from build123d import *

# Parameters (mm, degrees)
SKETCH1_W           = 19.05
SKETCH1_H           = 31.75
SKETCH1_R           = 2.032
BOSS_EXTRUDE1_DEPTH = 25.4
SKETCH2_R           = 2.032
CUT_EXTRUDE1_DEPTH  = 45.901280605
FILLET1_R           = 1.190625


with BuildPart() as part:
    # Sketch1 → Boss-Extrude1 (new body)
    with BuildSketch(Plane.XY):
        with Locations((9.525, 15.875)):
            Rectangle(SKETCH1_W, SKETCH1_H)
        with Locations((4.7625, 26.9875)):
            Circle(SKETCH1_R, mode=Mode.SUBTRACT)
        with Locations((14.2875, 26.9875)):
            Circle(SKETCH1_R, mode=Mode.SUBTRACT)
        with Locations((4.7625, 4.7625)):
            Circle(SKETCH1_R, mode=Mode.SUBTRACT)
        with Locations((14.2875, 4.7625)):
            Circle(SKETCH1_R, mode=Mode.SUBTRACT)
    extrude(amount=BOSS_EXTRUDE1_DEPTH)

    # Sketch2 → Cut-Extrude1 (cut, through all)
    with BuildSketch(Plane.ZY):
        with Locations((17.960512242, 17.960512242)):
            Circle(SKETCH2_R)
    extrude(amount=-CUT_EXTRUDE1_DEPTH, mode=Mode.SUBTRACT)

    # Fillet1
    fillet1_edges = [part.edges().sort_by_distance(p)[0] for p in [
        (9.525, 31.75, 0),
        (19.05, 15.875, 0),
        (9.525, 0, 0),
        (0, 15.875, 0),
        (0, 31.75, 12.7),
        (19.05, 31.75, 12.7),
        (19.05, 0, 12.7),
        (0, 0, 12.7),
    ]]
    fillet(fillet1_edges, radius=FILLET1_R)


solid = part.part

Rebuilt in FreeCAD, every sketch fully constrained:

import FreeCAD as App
import Part
import Sketcher
from FreeCAD import Vector
Q = App.Units.Quantity


def edges_at(feature, points):
    """Names of the edges that pass closest to the given points."""
    edges = feature.Shape.Edges
    near = lambda p: min(range(len(edges)), key=lambda i: edges[i].distToShape(Part.Vertex(*p))[0])
    return sorted({f"Edge{near(p) + 1}" for p in points})


def add_polygon(sketch, points):
    """Adds a closed chain of lines whose ends are joined by coincident constraints."""
    first, n = sketch.GeometryCount, len(points)
    for a, b in zip(points, points[1:] + points[:1]):
        sketch.addGeometry(Part.LineSegment(App.Vector(*a, 0), App.Vector(*b, 0)), False)
    for i in range(n):
        sketch.addConstraint(Sketcher.Constraint("Coincident", first + i, 2, first + (i + 1) % n, 1))

doc = App.newDocument("Part")
params = doc.addObject("Spreadsheet::Sheet", "Params")
for row, (alias, value) in enumerate([
    ("sketch1_diameter", "0.16 in"),
    ("sketch1_width", "0.75 in"),
    ("sketch1_height", "1.25 in"),
    ("pad1_length", "1 in"),
    ("sketch2_diameter", "0.16 in"),
    ("fillet_radius", "0.046875 in"),
], start=1):
    params.set(f"A{row}", alias)
    params.set(f"B{row}", "=" + value)
    params.setAlias(f"B{row}", alias)

body = doc.addObject("PartDesign::Body", "Body")

# Sketch on XY plane
sketch1 = body.newObject("Sketcher::SketchObject", "Sketch")
sketch1.AttachmentSupport = (doc.getObject("XY_Plane"), [""])
sketch1.MapMode = "FlatFace"
add_polygon(sketch1, [(0, 31.8), (0, 0), (19.1, 0), (19.1, 31.8)])  # lines 0-3
sketch1.addGeometry(Part.Circle(Vector(4.8, 4.8, 0), Vector(0, 0, 1), 2), False)  # 4
sketch1.addGeometry(Part.Circle(Vector(14.3, 4.8, 0), Vector(0, 0, 1), 2), False)  # 5
sketch1.addGeometry(Part.Circle(Vector(4.8, 27, 0), Vector(0, 0, 1), 2), False)  # 6
sketch1.addGeometry(Part.Circle(Vector(14.3, 27, 0), Vector(0, 0, 1), 2), False)  # 7
sketch1.addConstraint(Sketcher.Constraint("Vertical", 0))
sketch1.addConstraint(Sketcher.Constraint("Horizontal", 1))
sketch1.addConstraint(Sketcher.Constraint("Vertical", 2))
sketch1.addConstraint(Sketcher.Constraint("Horizontal", 3))
sketch1.addConstraint(Sketcher.Constraint("Coincident", 0, 2, -1, 1))
sketch1.addConstraint(Sketcher.Constraint("Equal", 4, 5))
sketch1.addConstraint(Sketcher.Constraint("Equal", 5, 6))
sketch1.addConstraint(Sketcher.Constraint("Equal", 6, 7))
sketch1.addConstraint(Sketcher.Constraint("Horizontal", 4, 3, 5, 3))
sketch1.addConstraint(Sketcher.Constraint("Horizontal", 6, 3, 7, 3))
sketch1.addConstraint(Sketcher.Constraint("Vertical", 4, 3, 6, 3))
sketch1.addConstraint(Sketcher.Constraint("Vertical", 5, 3, 7, 3))
sketch1.addConstraint(Sketcher.Constraint("Diameter", 4, Q("0.16 in")))
sketch1.addConstraint(Sketcher.Constraint("DistanceX", 1, 1, 1, 2, Q("0.75 in")))
sketch1.addConstraint(Sketcher.Constraint("DistanceY", 0, 2, 0, 1, Q("1.25 in")))
sketch1.addConstraint(Sketcher.Constraint("DistanceX", -1, 1, 4, 3, Q("0.1875 in")))
sketch1.addConstraint(Sketcher.Constraint("DistanceY", -1, 1, 4, 3, Q("0.1875 in")))
sketch1.addConstraint(Sketcher.Constraint("DistanceX", -1, 1, 5, 3, Q("0.5625 in")))
sketch1.addConstraint(Sketcher.Constraint("DistanceY", -1, 1, 6, 3, Q("1.0625 in")))
sketch1.setExpression("Constraints[16]", "Params.sketch1_diameter")
sketch1.setExpression("Constraints[17]", "Params.sketch1_width")
sketch1.setExpression("Constraints[18]", "Params.sketch1_height")
pad1 = body.newObject("PartDesign::Pad", "Pad")
pad1.Profile = sketch1
pad1.setExpression("Length", "Params.pad1_length")

# Sketch on YZ plane
sketch2 = body.newObject("Sketcher::SketchObject", "Sketch001")
sketch2.AttachmentSupport = (doc.getObject("YZ_Plane"), [""])
sketch2.MapMode = "FlatFace"
sketch2.addGeometry(Part.Circle(Vector(18, 18, 0), Vector(0, 0, 1), 2), False)
sketch2.addConstraint(Sketcher.Constraint("Diameter", 0, Q("0.16 in")))
sketch2.addConstraint(Sketcher.Constraint("DistanceX", -1, 1, 0, 3, 17.960512))
sketch2.addConstraint(Sketcher.Constraint("DistanceY", -1, 1, 0, 3, 17.960512))
sketch2.setExpression("Constraints[0]", "Params.sketch2_diameter")
pocket1 = body.newObject("PartDesign::Pocket", "Pocket")
pocket1.Profile = sketch2
pocket1.Type = "ThroughAll"
pocket1.Reversed = True
doc.recompute()

fillet = body.newObject("PartDesign::Fillet", "Fillet")
fillet.Base = (pocket1, edges_at(pocket1, [
    (9.525, 31.75, 0),
    (19.05, 15.875, 0),
    (9.525, 0, 0),
    (0, 15.875, 0),
    (0, 31.75, 12.7),
    (19.05, 31.75, 12.7),
    (19.05, 0, 12.7),
    (0, 0, 12.7),
]))
fillet.setExpression("Radius", "Params.fillet_radius")

doc.recompute()
